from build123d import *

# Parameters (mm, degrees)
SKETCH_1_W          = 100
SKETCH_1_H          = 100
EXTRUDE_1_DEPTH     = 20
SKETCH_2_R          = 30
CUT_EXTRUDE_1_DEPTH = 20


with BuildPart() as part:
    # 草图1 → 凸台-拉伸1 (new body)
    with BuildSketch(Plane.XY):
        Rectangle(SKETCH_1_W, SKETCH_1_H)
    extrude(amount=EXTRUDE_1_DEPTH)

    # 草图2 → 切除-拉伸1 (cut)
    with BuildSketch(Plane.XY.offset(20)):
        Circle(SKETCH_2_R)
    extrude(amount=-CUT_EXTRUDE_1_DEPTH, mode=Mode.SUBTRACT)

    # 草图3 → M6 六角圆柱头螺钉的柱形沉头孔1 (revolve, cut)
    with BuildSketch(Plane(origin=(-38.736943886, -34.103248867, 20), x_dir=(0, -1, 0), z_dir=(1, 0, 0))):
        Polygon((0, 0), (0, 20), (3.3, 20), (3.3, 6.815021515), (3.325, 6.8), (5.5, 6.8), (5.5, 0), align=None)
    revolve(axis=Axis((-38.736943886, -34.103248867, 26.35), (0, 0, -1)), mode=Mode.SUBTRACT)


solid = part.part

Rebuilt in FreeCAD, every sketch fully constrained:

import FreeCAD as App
import Part
import Sketcher

V = App.Vector
Q = App.Units.Quantity

doc = App.newDocument("Part")
body = doc.addObject("PartDesign::Body", "Body")

sketch1 = doc.addObject("Sketcher::SketchObject", "Sketch")
body.addObject(sketch1)
sketch1.AttachmentSupport = (doc.XY_Plane, [""])
sketch1.MapMode = "FlatFace"
sketch1.addGeometry([
    Part.LineSegment(V(-50, 50, 0), V(-50, -50, 0)),
    Part.LineSegment(V(-50, -50, 0), V(50, -50, 0)),
    Part.LineSegment(V(50, -50, 0), V(50, 50, 0)),
    Part.LineSegment(V(50, 50, 0), V(-50, 50, 0)),
], False)
sketch1.addConstraint([
    Sketcher.Constraint("Coincident", 0, 2, 1, 1),
    Sketcher.Constraint("Coincident", 1, 2, 2, 1),
    Sketcher.Constraint("Coincident", 2, 2, 3, 1),
    Sketcher.Constraint("Coincident", 3, 2, 0, 1),
    Sketcher.Constraint("Vertical", 0),
    Sketcher.Constraint("Horizontal", 1),
    Sketcher.Constraint("Vertical", 2),
    Sketcher.Constraint("Horizontal", 3),
    Sketcher.Constraint("Symmetric", 0, 2, 2, 2, -1, 1),
    Sketcher.Constraint("Equal", 3, 0),
    Sketcher.Constraint("DistanceX", 1, 1, 1, 2, 100.0),
])
pad1 = doc.addObject("PartDesign::Pad", "Pad")
body.addObject(pad1)
pad1.Profile = sketch1
pad1.Length = 20

sketch2 = doc.addObject("Sketcher::SketchObject", "Sketch001")
body.addObject(sketch2)
sketch2.AttachmentSupport = (doc.XY_Plane, [""])
sketch2.MapMode = "FlatFace"
sketch2.AttachmentOffset = App.Placement(V(0, 0, 20), App.Rotation())
sketch2.addGeometry(Part.Circle(V(0, 0, 0), V(0, 0, 1), 30), False)
sketch2.addConstraint([
    Sketcher.Constraint("Coincident", 0, 3, -1, 1),
    Sketcher.Constraint("Diameter", 0, 60.0),
])
pocket1 = doc.addObject("PartDesign::Pocket", "Pocket")
body.addObject(pocket1)
pocket1.Profile = sketch2
pocket1.Length = 20

sketch3 = doc.addObject("Sketcher::SketchObject", "Sketch002")
body.addObject(sketch3)
sketch3.AttachmentSupport = (doc.YZ_Plane, [""])
sketch3.MapMode = "FlatFace"
sketch3.AttachmentOffset = App.Placement(V(0, 0, -38.736944), App.Rotation())
sketch3.addGeometry([
    Part.LineSegment(V(-34.103249, 0, 0), V(-34.103249, 20, 0)),
    Part.LineSegment(V(-34.103249, 20, 0), V(-39.603249, 20, 0)),
    Part.LineSegment(V(-39.603249, 20, 0), V(-39.603249, 13.2, 0)),
    Part.LineSegment(V(-39.603249, 13.2, 0), V(-37.428249, 13.2, 0)),
    Part.LineSegment(V(-37.428249, 13.2, 0), V(-37.403249, 13.184978, 0)),
    Part.LineSegment(V(-37.403249, 13.184978, 0), V(-37.403249, 0, 0)),
    Part.LineSegment(V(-37.403249, 0, 0), V(-34.103249, 0, 0)),
], False)
sketch3.addGeometry(Part.LineSegment(V(-34.103249, 20, 0), V(-34.103249, 0, 0)), True)
sketch3.addConstraint([
    Sketcher.Constraint("Coincident", 0, 2, 1, 1),
    Sketcher.Constraint("Coincident", 1, 2, 2, 1),
    Sketcher.Constraint("Coincident", 2, 2, 3, 1),
    Sketcher.Constraint("Coincident", 3, 2, 4, 1),
    Sketcher.Constraint("Coincident", 4, 2, 5, 1),
    Sketcher.Constraint("Coincident", 5, 2, 6, 1),
    Sketcher.Constraint("Coincident", 6, 2, 0, 1),
    Sketcher.Constraint("Vertical", 0),
    Sketcher.Constraint("Horizontal", 1),
    Sketcher.Constraint("Vertical", 2),
    Sketcher.Constraint("Horizontal", 3),
    Sketcher.Constraint("Vertical", 5),
    Sketcher.Constraint("Horizontal", 6),
    Sketcher.Constraint("Vertical", 7),
    Sketcher.Constraint("Coincident", 7, 1, 0, 2),
    Sketcher.Constraint("PointOnObject", 5, 2, -1),
    Sketcher.Constraint("PointOnObject", 7, 2, -1),
    Sketcher.Constraint("DistanceY", 0, 1, 0, 2, 20.0),
    Sketcher.Constraint("Angle", 4, Q("-30.999999 deg")),
    Sketcher.Constraint("DistanceX", 1, 2, 1, 1, 5.5),
    Sketcher.Constraint("DistanceX", 6, 1, 6, 2, 3.3),
    Sketcher.Constraint("DistanceY", 2, 2, 2, 1, 6.8),
    Sketcher.Constraint("DistanceX", 3, 1, 3, 2, 2.175),
    Sketcher.Constraint("DistanceX", 0, 2, -1, 1, 34.103249),
])
groove = doc.addObject("PartDesign::Groove", "Groove")
body.addObject(groove)
groove.Profile = sketch3
groove.ReferenceAxis = (sketch3, ["Axis0"])
groove.Angle = 360

doc.recompute()
